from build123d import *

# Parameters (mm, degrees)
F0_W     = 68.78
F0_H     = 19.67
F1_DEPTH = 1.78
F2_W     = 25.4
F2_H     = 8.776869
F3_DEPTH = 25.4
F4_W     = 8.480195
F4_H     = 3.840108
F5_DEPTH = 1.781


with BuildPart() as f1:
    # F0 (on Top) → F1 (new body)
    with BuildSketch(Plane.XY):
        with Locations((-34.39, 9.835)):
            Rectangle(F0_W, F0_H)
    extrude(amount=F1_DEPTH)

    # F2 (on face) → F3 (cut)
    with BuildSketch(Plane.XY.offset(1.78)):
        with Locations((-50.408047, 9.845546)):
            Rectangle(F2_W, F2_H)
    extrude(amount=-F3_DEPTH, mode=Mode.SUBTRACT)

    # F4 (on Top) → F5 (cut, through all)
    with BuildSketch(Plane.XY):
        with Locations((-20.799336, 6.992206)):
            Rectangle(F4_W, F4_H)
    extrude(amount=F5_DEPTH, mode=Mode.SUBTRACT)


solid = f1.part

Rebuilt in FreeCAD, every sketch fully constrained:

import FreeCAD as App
import Part
import Sketcher

V = App.Vector
Q = App.Units.Quantity


def add_polygon(sketch, points):
    """Adds a closed chain of lines whose ends are joined by coincident constraints."""
    first, n = sketch.GeometryCount, len(points)
    for a, b in zip(points, points[1:] + points[:1]):
        sketch.addGeometry(Part.LineSegment(App.Vector(*a, 0), App.Vector(*b, 0)), False)
    for i in range(n):
        sketch.addConstraint(Sketcher.Constraint("Coincident", first + i, 2, first + (i + 1) % n, 1))

doc = App.newDocument("Part")
body = doc.addObject("PartDesign::Body", "Body")

# Sketch on XY plane
sketch1 = doc.addObject("Sketcher::SketchObject", "Sketch")
body.addObject(sketch1)
sketch1.AttachmentSupport = (doc.XY_Plane, [""])
sketch1.MapMode = "FlatFace"
add_polygon(sketch1, [(-69, 20), (-69, 0), (0, 0), (0, 20)])  # lines 0-3
sketch1.addConstraint([
    Sketcher.Constraint("Vertical", 0),
    Sketcher.Constraint("Horizontal", 1),
    Sketcher.Constraint("Vertical", 2),
    Sketcher.Constraint("Horizontal", 3),
    Sketcher.Constraint("Coincident", 1, 2, -1, 1),
    Sketcher.Constraint("DistanceX", 1, 1, 1, 2, Q("68.78 mm")),
    Sketcher.Constraint("DistanceY", 0, 2, 0, 1, Q("19.67 mm")),
])
pad1 = doc.addObject("PartDesign::Pad", "Pad")
body.addObject(pad1)
pad1.Profile = sketch1
pad1.Length = 1.78

# Sketch on XY plane
sketch2 = doc.addObject("Sketcher::SketchObject", "Sketch001")
body.addObject(sketch2)
sketch2.AttachmentSupport = (doc.XY_Plane, [""])
sketch2.MapMode = "FlatFace"
sketch2.AttachmentOffset = App.Placement(V(0, 0, 1.78), App.Rotation())
add_polygon(sketch2, [(-63, 14), (-63, 5), (-38, 5), (-38, 14)])  # lines 0-3
sketch2.addConstraint([
    Sketcher.Constraint("Vertical", 0),
    Sketcher.Constraint("Horizontal", 1),
    Sketcher.Constraint("Vertical", 2),
    Sketcher.Constraint("Horizontal", 3),
    Sketcher.Constraint("DistanceX", 1, 1, 1, 2, Q("1 in")),
    Sketcher.Constraint("DistanceY", 0, 2, 0, 1, Q("8.776869 mm")),
    Sketcher.Constraint("DistanceY", -1, 1, 0, 2, Q("5.457111 mm")),
    Sketcher.Constraint("DistanceX", 0, 2, -1, 1, Q("63.108047 mm")),
])
pocket1 = doc.addObject("PartDesign::Pocket", "Pocket")
body.addObject(pocket1)
pocket1.Profile = sketch2
pocket1.Length = Q("1 in")

# Sketch on XY plane
sketch3 = doc.addObject("Sketcher::SketchObject", "Sketch002")
body.addObject(sketch3)
sketch3.AttachmentSupport = (doc.XY_Plane, [""])
sketch3.MapMode = "FlatFace"
add_polygon(sketch3, [(-25, 8.9), (-25, 5.1), (-16.6, 5.1), (-16.6, 8.9)])  # lines 0-3
sketch3.addConstraint([
    Sketcher.Constraint("Vertical", 0),
    Sketcher.Constraint("Horizontal", 1),
    Sketcher.Constraint("Vertical", 2),
    Sketcher.Constraint("Horizontal", 3),
    Sketcher.Constraint("DistanceX", 1, 1, 1, 2, Q("8.480195 mm")),
    Sketcher.Constraint("DistanceY", 0, 2, 0, 1, Q("3.840108 mm")),
    Sketcher.Constraint("DistanceX", 1, 2, -1, 1, Q("16.559238 mm")),
    Sketcher.Constraint("DistanceY", -1, 1, 2, 2, Q("8.91226 mm")),
])
pocket2 = doc.addObject("PartDesign::Pocket", "Pocket001")
body.addObject(pocket2)
pocket2.Profile = sketch3
pocket2.Type = "ThroughAll"
pocket2.Reversed = True

doc.recompute()
